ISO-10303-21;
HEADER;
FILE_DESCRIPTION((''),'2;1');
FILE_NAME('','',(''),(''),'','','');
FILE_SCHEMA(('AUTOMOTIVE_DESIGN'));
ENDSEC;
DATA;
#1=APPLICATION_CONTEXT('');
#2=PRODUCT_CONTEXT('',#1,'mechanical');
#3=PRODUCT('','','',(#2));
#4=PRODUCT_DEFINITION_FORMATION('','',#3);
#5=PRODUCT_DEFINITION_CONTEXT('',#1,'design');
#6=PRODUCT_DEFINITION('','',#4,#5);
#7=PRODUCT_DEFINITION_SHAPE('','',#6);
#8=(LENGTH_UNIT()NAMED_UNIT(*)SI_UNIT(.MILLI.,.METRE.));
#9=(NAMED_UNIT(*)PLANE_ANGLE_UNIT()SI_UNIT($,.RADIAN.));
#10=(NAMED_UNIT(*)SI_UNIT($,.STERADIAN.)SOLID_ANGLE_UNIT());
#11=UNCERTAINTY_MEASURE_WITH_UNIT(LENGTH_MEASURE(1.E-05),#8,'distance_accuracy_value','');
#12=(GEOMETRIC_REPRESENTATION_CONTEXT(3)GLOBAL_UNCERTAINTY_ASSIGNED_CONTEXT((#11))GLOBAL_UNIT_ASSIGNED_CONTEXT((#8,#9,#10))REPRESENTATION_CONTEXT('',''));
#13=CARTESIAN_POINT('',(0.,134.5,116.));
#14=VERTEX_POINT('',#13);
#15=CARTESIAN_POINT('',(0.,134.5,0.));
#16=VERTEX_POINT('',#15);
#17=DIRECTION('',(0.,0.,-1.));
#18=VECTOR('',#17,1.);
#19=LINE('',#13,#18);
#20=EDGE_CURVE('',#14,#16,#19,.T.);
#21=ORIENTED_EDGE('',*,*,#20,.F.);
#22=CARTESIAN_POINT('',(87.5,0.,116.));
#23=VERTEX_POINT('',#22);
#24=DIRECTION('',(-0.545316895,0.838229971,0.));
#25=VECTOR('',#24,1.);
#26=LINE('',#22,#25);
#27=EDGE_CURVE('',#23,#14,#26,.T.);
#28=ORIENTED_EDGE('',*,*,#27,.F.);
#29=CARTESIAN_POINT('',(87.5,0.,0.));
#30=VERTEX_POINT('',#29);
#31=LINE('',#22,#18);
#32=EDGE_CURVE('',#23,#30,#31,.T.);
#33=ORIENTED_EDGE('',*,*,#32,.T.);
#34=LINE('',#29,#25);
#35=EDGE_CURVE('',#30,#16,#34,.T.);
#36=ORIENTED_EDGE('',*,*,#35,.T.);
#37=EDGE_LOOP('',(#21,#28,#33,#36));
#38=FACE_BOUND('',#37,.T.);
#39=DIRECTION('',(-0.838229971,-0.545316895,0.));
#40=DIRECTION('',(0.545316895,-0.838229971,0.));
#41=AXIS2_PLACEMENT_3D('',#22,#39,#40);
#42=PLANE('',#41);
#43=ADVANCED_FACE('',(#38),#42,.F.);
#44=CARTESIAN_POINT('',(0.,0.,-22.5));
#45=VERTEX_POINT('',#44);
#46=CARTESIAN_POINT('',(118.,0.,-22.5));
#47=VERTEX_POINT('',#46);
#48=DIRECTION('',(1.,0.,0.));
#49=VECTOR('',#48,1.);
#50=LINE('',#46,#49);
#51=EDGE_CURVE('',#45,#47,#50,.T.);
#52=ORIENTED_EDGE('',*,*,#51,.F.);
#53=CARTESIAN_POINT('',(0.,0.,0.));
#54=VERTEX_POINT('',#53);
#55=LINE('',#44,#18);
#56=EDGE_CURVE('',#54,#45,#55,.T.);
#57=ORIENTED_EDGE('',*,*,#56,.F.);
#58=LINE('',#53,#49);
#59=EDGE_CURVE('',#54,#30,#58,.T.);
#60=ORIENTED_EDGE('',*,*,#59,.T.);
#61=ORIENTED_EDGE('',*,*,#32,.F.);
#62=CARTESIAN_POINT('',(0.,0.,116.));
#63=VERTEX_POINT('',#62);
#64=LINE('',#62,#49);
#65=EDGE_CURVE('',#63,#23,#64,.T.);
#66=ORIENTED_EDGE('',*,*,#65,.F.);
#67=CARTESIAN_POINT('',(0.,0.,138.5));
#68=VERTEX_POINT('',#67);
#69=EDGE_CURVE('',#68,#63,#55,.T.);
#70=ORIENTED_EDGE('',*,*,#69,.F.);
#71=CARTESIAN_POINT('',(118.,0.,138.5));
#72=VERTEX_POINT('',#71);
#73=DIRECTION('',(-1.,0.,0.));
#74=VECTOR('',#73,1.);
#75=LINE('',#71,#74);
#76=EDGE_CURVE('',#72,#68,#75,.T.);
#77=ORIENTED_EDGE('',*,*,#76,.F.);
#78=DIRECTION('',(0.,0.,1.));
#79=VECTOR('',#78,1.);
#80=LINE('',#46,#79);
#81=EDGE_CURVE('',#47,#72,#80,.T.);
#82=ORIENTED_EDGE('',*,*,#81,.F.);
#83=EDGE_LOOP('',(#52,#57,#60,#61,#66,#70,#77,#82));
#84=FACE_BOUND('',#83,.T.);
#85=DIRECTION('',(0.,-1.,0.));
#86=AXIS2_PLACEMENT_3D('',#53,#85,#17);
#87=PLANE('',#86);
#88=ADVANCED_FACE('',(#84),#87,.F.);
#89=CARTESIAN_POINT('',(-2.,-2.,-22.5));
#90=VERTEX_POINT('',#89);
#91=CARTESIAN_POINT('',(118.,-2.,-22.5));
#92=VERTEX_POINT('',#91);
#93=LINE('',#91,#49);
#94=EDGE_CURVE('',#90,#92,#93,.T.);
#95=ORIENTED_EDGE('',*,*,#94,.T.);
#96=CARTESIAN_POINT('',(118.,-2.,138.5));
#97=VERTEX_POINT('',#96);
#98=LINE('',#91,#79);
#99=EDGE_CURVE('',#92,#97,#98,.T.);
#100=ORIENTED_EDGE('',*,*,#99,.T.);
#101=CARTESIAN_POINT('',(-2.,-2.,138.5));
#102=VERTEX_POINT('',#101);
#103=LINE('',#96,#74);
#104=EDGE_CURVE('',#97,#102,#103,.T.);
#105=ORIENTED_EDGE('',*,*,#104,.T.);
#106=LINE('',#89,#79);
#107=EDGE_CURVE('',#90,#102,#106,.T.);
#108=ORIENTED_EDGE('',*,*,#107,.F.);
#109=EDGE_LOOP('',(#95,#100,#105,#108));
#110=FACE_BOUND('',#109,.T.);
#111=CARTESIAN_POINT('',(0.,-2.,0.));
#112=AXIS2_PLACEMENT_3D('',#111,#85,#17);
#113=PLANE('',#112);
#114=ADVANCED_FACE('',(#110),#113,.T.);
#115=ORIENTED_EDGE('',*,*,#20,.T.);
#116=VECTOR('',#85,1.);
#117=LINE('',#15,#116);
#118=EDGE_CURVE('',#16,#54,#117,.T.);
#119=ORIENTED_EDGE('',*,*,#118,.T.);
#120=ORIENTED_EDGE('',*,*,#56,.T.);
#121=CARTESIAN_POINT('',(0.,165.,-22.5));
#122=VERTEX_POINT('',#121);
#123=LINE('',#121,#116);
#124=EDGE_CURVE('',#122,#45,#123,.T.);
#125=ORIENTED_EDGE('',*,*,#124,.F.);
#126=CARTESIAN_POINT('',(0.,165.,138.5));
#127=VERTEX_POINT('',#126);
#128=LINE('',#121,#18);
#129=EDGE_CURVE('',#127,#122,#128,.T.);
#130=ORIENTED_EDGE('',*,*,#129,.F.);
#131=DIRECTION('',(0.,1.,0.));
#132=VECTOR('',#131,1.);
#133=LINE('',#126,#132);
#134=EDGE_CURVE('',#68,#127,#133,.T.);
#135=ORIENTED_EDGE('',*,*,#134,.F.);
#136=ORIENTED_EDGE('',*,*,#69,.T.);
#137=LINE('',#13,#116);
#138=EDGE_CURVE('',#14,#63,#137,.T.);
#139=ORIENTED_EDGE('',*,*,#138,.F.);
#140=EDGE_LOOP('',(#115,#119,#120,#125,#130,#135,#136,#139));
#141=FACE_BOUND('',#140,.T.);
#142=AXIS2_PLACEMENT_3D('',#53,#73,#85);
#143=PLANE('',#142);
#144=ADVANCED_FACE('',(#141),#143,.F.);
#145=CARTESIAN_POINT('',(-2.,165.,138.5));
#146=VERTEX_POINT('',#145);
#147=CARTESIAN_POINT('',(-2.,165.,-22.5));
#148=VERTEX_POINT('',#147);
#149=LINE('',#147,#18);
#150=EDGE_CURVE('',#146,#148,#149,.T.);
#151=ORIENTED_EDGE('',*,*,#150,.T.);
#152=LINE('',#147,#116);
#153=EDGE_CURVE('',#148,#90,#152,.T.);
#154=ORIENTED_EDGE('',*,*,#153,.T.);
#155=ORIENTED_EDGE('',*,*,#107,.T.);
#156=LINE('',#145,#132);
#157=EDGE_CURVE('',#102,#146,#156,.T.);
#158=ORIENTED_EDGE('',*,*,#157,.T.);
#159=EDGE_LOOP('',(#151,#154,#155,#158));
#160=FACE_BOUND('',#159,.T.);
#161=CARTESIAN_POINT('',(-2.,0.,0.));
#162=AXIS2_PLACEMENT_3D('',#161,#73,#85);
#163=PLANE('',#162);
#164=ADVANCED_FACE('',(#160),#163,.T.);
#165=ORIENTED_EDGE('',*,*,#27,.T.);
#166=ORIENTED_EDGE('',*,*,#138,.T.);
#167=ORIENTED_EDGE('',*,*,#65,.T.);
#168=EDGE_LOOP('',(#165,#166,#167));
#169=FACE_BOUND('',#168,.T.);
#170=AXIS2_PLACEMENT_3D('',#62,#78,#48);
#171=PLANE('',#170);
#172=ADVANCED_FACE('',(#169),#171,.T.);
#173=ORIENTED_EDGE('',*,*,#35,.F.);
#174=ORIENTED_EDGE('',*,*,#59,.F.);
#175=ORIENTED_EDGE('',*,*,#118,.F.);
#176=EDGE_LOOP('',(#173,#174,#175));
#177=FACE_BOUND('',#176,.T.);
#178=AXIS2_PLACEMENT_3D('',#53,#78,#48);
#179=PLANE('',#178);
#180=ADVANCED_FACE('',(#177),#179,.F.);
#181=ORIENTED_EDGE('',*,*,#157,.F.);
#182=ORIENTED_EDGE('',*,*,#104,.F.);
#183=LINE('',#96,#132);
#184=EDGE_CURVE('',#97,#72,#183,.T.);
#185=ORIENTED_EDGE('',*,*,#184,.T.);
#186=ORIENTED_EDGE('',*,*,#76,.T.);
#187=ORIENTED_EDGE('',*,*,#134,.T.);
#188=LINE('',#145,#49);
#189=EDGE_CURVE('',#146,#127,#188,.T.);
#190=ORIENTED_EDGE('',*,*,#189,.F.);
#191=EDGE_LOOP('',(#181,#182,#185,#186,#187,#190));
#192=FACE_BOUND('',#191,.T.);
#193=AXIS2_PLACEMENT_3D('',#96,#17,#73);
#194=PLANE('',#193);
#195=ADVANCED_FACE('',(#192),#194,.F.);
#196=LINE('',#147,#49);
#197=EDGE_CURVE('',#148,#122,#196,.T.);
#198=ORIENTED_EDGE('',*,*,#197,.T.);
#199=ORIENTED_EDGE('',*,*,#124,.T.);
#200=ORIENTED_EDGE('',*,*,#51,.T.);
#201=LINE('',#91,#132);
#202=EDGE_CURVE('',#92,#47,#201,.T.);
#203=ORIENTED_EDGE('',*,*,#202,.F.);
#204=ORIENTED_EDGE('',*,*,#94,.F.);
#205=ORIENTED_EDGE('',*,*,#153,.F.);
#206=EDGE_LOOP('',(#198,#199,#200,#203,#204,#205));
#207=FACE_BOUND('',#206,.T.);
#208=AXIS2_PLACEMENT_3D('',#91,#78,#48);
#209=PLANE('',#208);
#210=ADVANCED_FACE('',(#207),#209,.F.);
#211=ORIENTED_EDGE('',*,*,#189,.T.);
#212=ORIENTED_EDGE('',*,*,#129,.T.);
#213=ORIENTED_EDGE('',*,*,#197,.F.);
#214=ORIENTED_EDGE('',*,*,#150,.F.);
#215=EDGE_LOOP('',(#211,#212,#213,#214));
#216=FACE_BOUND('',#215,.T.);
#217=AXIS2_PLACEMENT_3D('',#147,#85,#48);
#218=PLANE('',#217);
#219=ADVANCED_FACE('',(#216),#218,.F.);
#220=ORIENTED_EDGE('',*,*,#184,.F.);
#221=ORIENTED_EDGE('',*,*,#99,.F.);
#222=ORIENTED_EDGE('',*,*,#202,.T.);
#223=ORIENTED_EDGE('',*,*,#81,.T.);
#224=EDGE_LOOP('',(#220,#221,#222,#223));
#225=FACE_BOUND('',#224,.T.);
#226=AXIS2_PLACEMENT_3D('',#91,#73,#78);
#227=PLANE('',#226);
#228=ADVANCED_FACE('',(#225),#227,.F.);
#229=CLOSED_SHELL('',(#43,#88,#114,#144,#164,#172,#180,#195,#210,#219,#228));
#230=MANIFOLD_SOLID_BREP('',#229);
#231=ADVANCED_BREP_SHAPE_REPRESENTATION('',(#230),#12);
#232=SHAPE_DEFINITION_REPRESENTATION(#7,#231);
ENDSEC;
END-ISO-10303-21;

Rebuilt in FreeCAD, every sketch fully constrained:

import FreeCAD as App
import Part
import Sketcher


def add_polygon(sketch, points):
    """Adds a closed chain of lines whose ends are joined by coincident constraints."""
    first, n = sketch.GeometryCount, len(points)
    for a, b in zip(points, points[1:] + points[:1]):
        sketch.addGeometry(Part.LineSegment(App.Vector(*a, 0), App.Vector(*b, 0)), False)
    for i in range(n):
        sketch.addConstraint(Sketcher.Constraint("Coincident", first + i, 2, first + (i + 1) % n, 1))

doc = App.newDocument("Part")
params = doc.addObject("Spreadsheet::Sheet", "Params")
for row, (alias, value) in enumerate([
    ("sketch1_width", "87.5 mm"),
    ("sketch1_height", "134.5 mm"),
    ("pad1_length", "116 mm"),
    ("sketch2_width", "118 mm"),
    ("sketch2_height", "161 mm"),
    ("pad2_length", "2 mm"),
    ("sketch3_width", "167 mm"),
    ("sketch3_height", "161 mm"),
    ("pad3_length", "2 mm"),
], start=1):
    params.set(f"A{row}", alias)
    params.set(f"B{row}", "=" + value)
    params.setAlias(f"B{row}", alias)

body = doc.addObject("PartDesign::Body", "Body")

sketch1 = body.newObject("Sketcher::SketchObject", "Sketch")
sketch1.AttachmentSupport = (doc.getObject("XY_Plane"), [""])
sketch1.MapMode = "FlatFace"
add_polygon(sketch1, [(0, 0), (88, 0), (0, 134)])
sketch1.addConstraint([
    Sketcher.Constraint("Horizontal", 0),
    Sketcher.Constraint("Vertical", 2),
    Sketcher.Constraint("Coincident", 2, 2, -1, 1),
    Sketcher.Constraint("DistanceX", 0, 1, 0, 2, 87.5),
    Sketcher.Constraint("DistanceY", 2, 2, 2, 1, 134.5),
])
sketch1.setExpression("Constraints[6]", "Params.sketch1_width")
sketch1.setExpression("Constraints[7]", "Params.sketch1_height")
pad1 = body.newObject("PartDesign::Pad", "Pad")
pad1.Profile = sketch1
pad1.setExpression("Length", "Params.pad1_length")

sketch2 = body.newObject("Sketcher::SketchObject", "Sketch001")
sketch2.AttachmentSupport = (doc.getObject("XZ_Plane"), [""])
sketch2.MapMode = "FlatFace"
add_polygon(sketch2, [(118, -22), (118, 138), (0, 138), (0, -22)])
sketch2.addConstraint([
    Sketcher.Constraint("Vertical", 0),
    Sketcher.Constraint("Horizontal", 1),
    Sketcher.Constraint("Vertical", 2),
    Sketcher.Constraint("Horizontal", 3),
    Sketcher.Constraint("PointOnObject", 1, 2, -2),
    Sketcher.Constraint("DistanceX", 1, 2, 1, 1, 118.0),
    Sketcher.Constraint("DistanceY", 0, 1, 0, 2, 161.0),
    Sketcher.Constraint("DistanceY", -1, 1, 0, 2, 138.5),
])
sketch2.setExpression("Constraints[9]", "Params.sketch2_width")
sketch2.setExpression("Constraints[10]", "Params.sketch2_height")
pad2 = body.newObject("PartDesign::Pad", "Pad001")
pad2.Profile = sketch2
pad2.setExpression("Length", "Params.pad2_length")

sketch3 = body.newObject("Sketcher::SketchObject", "Sketch002")
sketch3.AttachmentSupport = (doc.getObject("YZ_Plane"), [""])
sketch3.MapMode = "FlatFace"
add_polygon(sketch3, [(165, -22), (-2, -22), (-2, 138), (165, 138)])
sketch3.addConstraint([
    Sketcher.Constraint("Horizontal", 0),
    Sketcher.Constraint("Vertical", 1),
    Sketcher.Constraint("Horizontal", 2),
    Sketcher.Constraint("Vertical", 3),
    Sketcher.Constraint("DistanceX", 0, 2, 0, 1, 167.0),
    Sketcher.Constraint("DistanceY", 1, 1, 1, 2, 161.0),
    Sketcher.Constraint("DistanceX", 0, 2, -1, 1, 2.0),
    Sketcher.Constraint("DistanceY", 0, 2, -1, 1, 22.5),
])
sketch3.setExpression("Constraints[8]", "Params.sketch3_width")
sketch3.setExpression("Constraints[9]", "Params.sketch3_height")
pad3 = body.newObject("PartDesign::Pad", "Pad002")
pad3.Profile = sketch3
pad3.setExpression("Length", "Params.pad3_length")
pad3.Reversed = True

doc.recompute()
